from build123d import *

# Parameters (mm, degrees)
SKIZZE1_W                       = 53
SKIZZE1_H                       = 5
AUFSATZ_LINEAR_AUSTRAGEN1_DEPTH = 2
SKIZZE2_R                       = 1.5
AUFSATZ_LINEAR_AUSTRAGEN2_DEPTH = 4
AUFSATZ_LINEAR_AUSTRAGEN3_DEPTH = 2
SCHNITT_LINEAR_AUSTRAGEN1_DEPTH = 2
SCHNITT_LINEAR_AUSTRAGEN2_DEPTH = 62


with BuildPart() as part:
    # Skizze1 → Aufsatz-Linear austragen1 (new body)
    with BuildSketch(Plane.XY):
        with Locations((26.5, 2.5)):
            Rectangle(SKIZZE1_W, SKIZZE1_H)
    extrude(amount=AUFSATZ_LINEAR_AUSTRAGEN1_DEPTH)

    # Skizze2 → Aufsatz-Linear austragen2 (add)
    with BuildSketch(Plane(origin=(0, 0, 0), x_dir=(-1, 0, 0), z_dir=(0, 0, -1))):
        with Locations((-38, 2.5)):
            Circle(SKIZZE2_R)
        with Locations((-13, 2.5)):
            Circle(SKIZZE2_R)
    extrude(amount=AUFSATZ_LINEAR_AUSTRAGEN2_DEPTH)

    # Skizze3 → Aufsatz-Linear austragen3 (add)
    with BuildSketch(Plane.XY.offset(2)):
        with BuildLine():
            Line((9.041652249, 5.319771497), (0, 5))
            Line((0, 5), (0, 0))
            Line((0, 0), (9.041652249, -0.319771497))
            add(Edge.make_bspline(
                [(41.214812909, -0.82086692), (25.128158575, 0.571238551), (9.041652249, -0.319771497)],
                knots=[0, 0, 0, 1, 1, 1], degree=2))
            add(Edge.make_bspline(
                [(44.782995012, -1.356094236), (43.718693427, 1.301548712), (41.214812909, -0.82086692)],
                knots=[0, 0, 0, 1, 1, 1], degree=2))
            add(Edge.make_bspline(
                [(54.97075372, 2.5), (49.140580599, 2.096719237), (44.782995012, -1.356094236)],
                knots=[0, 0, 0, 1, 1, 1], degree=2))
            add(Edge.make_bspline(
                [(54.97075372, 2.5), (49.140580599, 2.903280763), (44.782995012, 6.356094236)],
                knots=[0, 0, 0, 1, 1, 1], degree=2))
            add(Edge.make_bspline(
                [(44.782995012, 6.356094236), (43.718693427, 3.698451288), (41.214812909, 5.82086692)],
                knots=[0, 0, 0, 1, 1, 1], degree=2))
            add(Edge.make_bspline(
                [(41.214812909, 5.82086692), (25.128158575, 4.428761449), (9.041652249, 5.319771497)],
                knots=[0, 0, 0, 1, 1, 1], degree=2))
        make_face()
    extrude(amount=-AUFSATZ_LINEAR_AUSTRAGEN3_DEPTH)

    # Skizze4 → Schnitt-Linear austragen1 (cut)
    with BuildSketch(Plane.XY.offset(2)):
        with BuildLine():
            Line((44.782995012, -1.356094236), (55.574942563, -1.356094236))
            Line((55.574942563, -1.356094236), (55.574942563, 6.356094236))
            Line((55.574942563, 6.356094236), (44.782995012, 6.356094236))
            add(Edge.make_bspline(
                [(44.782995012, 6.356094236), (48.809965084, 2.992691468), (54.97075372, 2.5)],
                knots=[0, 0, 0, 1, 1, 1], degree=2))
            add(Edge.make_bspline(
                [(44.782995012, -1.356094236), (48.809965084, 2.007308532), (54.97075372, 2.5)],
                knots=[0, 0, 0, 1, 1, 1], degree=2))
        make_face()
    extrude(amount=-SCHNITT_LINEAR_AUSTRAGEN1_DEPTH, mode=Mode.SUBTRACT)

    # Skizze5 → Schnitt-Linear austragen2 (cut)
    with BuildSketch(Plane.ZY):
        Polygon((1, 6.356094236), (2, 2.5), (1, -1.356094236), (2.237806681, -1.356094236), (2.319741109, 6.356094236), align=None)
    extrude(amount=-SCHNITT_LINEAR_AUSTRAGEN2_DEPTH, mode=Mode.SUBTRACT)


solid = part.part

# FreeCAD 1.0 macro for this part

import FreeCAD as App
import Part
import Sketcher
from FreeCAD import Vector
Q = App.Units.Quantity


def add_polygon(sketch, points):
    """Adds a closed chain of lines whose ends are joined by coincident constraints."""
    first, n = sketch.GeometryCount, len(points)
    for a, b in zip(points, points[1:] + points[:1]):
        sketch.addGeometry(Part.LineSegment(App.Vector(*a, 0), App.Vector(*b, 0)), False)
    for i in range(n):
        sketch.addConstraint(Sketcher.Constraint("Coincident", first + i, 2, first + (i + 1) % n, 1))

doc = App.newDocument("Part")
body = doc.addObject("PartDesign::Body", "Body")

# Sketch on XY plane
sketch1 = body.newObject("Sketcher::SketchObject", "Sketch")
sketch1.AttachmentSupport = (doc.getObject("XY_Plane"), [""])
sketch1.MapMode = "FlatFace"
add_polygon(sketch1, [(0, 5), (0, 0), (53, 0), (53, 5)])  # lines 0-3
sketch1.addConstraint([
    Sketcher.Constraint("Vertical", 0),
    Sketcher.Constraint("Horizontal", 1),
    Sketcher.Constraint("Vertical", 2),
    Sketcher.Constraint("Horizontal", 3),
    Sketcher.Constraint("Coincident", 0, 2, -1, 1),
    Sketcher.Constraint("DistanceX", 1, 1, 1, 2, Q("53 mm")),
    Sketcher.Constraint("DistanceY", 0, 2, 0, 1, Q("5 mm")),
])
pad1 = body.newObject("PartDesign::Pad", "Pad")
pad1.Profile = sketch1
pad1.Length = 2

# Sketch on XY plane
sketch2 = body.newObject("Sketcher::SketchObject", "Sketch001")
sketch2.AttachmentSupport = (doc.getObject("XY_Plane"), [""])
sketch2.MapMode = "FlatFace"
sketch2.addGeometry([
    Part.Circle(Vector(38, 2.5, 0), Vector(0, 0, 1), 1.5),
    Part.Circle(Vector(13, 2.5, 0), Vector(0, 0, 1), 1.5),
], False)
sketch2.addConstraint([
    Sketcher.Constraint("Equal", 0, 1),
    Sketcher.Constraint("Horizontal", 0, 3, 1, 3),
    Sketcher.Constraint("Diameter", 0, Q("3 mm")),
    Sketcher.Constraint("DistanceX", -1, 1, 0, 3, Q("38 mm")),
    Sketcher.Constraint("DistanceX", -1, 1, 1, 3, Q("13 mm")),
    Sketcher.Constraint("DistanceY", -1, 1, 0, 3, Q("2.5 mm")),
])
pad2 = body.newObject("PartDesign::Pad", "Pad001")
pad2.Profile = sketch2
pad2.Length = 4
pad2.Reversed = True

# Sketch on XY plane
sketch3 = body.newObject("Sketcher::SketchObject", "Sketch002")
sketch3.AttachmentSupport = (doc.getObject("XY_Plane"), [""])
sketch3.MapMode = "FlatFace"
sketch3.AttachmentOffset = App.Placement(Vector(0, 0, 2), App.Rotation())
sketch3.addGeometry([
    Part.LineSegment(Vector(9.041652, 5.319771, 0), Vector(0, 5, 0)),  # 0
    Part.LineSegment(Vector(0, 5, 0), Vector(0, 0, 0)),  # 1
    Part.LineSegment(Vector(0, 0, 0), Vector(9.041652, -0.319771, 0)),  # 2
    Part.BSplineCurve([Vector(41.214813, -0.820867, 0), Vector(25.128159, 0.571239, 0), Vector(9.041652, -0.319771, 0)], [3, 3], [0, 1], False, 2, [1, 1, 1], False),  # 3
    Part.BSplineCurve([Vector(44.782995, -1.356094, 0), Vector(43.718693, 1.301549, 0), Vector(41.214813, -0.820867, 0)], [3, 3], [0, 1], False, 2, [1, 1, 1], False),  # 4
    Part.BSplineCurve([Vector(54.970754, 2.5, 0), Vector(49.140581, 2.096719, 0), Vector(44.782995, -1.356094, 0)], [3, 3], [0, 1], False, 2, [1, 1, 1], False),  # 5
    Part.BSplineCurve([Vector(54.970754, 2.5, 0), Vector(49.140581, 2.903281, 0), Vector(44.782995, 6.356094, 0)], [3, 3], [0, 1], False, 2, [1, 1, 1], False),  # 6
    Part.BSplineCurve([Vector(44.782995, 6.356094, 0), Vector(43.718693, 3.698451, 0), Vector(41.214813, 5.820867, 0)], [3, 3], [0, 1], False, 2, [1, 1, 1], False),  # 7
    Part.BSplineCurve([Vector(41.214813, 5.820867, 0), Vector(25.128159, 4.428761, 0), Vector(9.041652, 5.319771, 0)], [3, 3], [0, 1], False, 2, [1, 1, 1], False),  # 8
], False)
sketch3.addConstraint([
    Sketcher.Constraint("Block", 3),
    Sketcher.Constraint("Block", 4),
    Sketcher.Constraint("Block", 5),
    Sketcher.Constraint("Block", 6),
    Sketcher.Constraint("Block", 7),
    Sketcher.Constraint("Block", 8),
    Sketcher.Constraint("Coincident", 0, 2, 1, 1),
    Sketcher.Constraint("Coincident", 1, 2, 2, 1),
    Sketcher.Constraint("Coincident", 2, 2, 3, 2),
    Sketcher.Constraint("Coincident", 8, 2, 0, 1),
    Sketcher.Constraint("Vertical", 1),
    Sketcher.Constraint("Coincident", 1, 2, -1, 1),
    Sketcher.Constraint("DistanceY", 1, 2, 1, 1, Q("5 mm")),
])
pad3 = body.newObject("PartDesign::Pad", "Pad002")
pad3.Profile = sketch3
pad3.Length = 2
pad3.Reversed = True

# Sketch on XY plane
sketch4 = body.newObject("Sketcher::SketchObject", "Sketch003")
sketch4.AttachmentSupport = (doc.getObject("XY_Plane"), [""])
sketch4.MapMode = "FlatFace"
sketch4.AttachmentOffset = App.Placement(Vector(0, 0, 2), App.Rotation())
sketch4.addGeometry([
    Part.LineSegment(Vector(44.782995, -1.356094, 0), Vector(55.574943, -1.356094, 0)),  # 0
    Part.LineSegment(Vector(55.574943, -1.356094, 0), Vector(55.574943, 6.356094, 0)),  # 1
    Part.LineSegment(Vector(55.574943, 6.356094, 0), Vector(44.782995, 6.356094, 0)),  # 2
    Part.BSplineCurve([Vector(44.782995, 6.356094, 0), Vector(48.809965, 2.992691, 0), Vector(54.970754, 2.5, 0)], [3, 3], [0, 1], False, 2, [1, 1, 1], False),  # 3
    Part.BSplineCurve([Vector(44.782995, -1.356094, 0), Vector(48.809965, 2.007309, 0), Vector(54.970754, 2.5, 0)], [3, 3], [0, 1], False, 2, [1, 1, 1], False),  # 4
], False)
sketch4.addConstraint([
    Sketcher.Constraint("Block", 3),
    Sketcher.Constraint("Block", 4),
    Sketcher.Constraint("Coincident", 0, 2, 1, 1),
    Sketcher.Constraint("Coincident", 1, 2, 2, 1),
    Sketcher.Constraint("Coincident", 2, 2, 3, 1),
    Sketcher.Constraint("Coincident", 4, 1, 0, 1),
    Sketcher.Constraint("Horizontal", 0),
    Sketcher.Constraint("Vertical", 1),
    Sketcher.Constraint("Horizontal", 2),
    Sketcher.Constraint("DistanceX", 0, 1, 0, 2, Q("10.791948 mm")),
])
pocket1 = body.newObject("PartDesign::Pocket", "Pocket")
pocket1.Profile = sketch4
pocket1.Length = 2

# Sketch on YZ plane
sketch5 = body.newObject("Sketcher::SketchObject", "Sketch004")
sketch5.AttachmentSupport = (doc.getObject("YZ_Plane"), [""])
sketch5.MapMode = "FlatFace"
add_polygon(sketch5, [(6.4, 1), (2.5, 2), (-1.4, 1), (-1.4, 2.2), (6.4, 2.3)])  # lines 0-4
sketch5.addConstraint([
    Sketcher.Constraint("Vertical", 2),
    Sketcher.Constraint("Vertical", 4),
    Sketcher.Constraint("Horizontal", 1, 2, 4, 2),
    Sketcher.Constraint("Equal", 0, 1),
    Sketcher.Constraint("DistanceY", -1, 1, 0, 2, Q("2 mm")),
    Sketcher.Constraint("DistanceY", -1, 1, 1, 2, Q("1 mm")),
    Sketcher.Constraint("DistanceX", -1, 1, 0, 2, Q("2.5 mm")),
    Sketcher.Constraint("DistanceY", 4, 2, 4, 1, Q("1.319741 mm")),
    Sketcher.Constraint("Distance", 0, Q("3.983649 mm")),
    Sketcher.Constraint("DistanceY", 2, 1, 2, 2, Q("1.237807 mm")),
])
pocket2 = body.newObject("PartDesign::Pocket", "Pocket001")
pocket2.Profile = sketch5
pocket2.Length = 62
pocket2.Reversed = True

doc.recompute()
